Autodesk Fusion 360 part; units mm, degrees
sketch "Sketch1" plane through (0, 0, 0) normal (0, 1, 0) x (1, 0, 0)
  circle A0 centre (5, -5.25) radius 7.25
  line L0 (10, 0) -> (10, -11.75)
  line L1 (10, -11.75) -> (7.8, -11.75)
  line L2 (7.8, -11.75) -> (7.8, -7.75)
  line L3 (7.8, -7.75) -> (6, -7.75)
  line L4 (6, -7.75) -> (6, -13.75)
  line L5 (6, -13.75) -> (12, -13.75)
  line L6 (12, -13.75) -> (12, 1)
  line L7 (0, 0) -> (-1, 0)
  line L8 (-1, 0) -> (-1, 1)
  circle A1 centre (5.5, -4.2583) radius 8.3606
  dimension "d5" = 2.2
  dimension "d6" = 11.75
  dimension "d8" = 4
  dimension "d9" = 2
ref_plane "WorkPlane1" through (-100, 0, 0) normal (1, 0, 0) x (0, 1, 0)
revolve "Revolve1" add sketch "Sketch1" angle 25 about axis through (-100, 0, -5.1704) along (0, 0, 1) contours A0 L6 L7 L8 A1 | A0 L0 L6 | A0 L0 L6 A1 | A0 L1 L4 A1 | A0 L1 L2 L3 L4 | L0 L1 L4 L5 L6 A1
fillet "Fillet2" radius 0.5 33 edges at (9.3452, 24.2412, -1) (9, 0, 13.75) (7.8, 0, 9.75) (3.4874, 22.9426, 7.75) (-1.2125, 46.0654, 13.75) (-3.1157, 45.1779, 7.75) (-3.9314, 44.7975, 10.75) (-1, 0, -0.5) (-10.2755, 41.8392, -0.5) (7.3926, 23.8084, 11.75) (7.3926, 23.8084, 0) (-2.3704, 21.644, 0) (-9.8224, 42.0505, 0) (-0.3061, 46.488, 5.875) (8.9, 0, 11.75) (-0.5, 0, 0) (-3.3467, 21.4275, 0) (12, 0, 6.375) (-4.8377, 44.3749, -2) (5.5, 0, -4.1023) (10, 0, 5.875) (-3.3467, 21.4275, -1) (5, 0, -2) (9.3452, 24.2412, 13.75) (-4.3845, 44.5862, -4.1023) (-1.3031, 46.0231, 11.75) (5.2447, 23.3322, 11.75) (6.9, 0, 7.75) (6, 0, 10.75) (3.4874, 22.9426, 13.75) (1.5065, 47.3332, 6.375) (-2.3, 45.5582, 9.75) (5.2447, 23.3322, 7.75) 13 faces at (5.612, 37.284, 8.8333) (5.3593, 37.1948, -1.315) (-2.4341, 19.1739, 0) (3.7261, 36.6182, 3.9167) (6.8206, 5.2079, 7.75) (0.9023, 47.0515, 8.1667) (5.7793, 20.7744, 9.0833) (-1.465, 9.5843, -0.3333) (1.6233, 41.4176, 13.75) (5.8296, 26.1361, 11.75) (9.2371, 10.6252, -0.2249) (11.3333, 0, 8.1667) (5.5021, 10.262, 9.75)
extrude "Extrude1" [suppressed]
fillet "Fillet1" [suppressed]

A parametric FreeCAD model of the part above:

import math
import FreeCAD as App
import Part
import Sketcher
from FreeCAD import Vector

doc = App.newDocument("Part")
params = doc.addObject("Spreadsheet::Sheet", "Params")
for row, (alias, value) in enumerate([
    ("sketch1_height", "4 mm"),
    ("sketch1_width", "2.2 mm"),
    ("sketch1_height2", "11.75 mm"),
    ("sketch1_width2", "1 mm"),
    ("sketch1_radius", "7.25 mm"),
    ("revolution_angle", "25 deg"),
    ("fillet_radius", "0.5 mm"),
], start=1):
    params.set(f"A{row}", alias)
    params.set(f"B{row}", "=" + value)
    params.setAlias(f"B{row}", alias)

body = doc.addObject("PartDesign::Body", "Body")

sketch1 = doc.addObject("Sketcher::SketchObject", "Sketch")
body.addObject(sketch1)
sketch1.AttachmentSupport = (doc.XZ_Plane, [""])
sketch1.MapMode = "FlatFace"
sketch1.addGeometry(Part.ArcOfCircle(Part.Circle(Vector(5, 5.25, 0), Vector(0, 0, 1), 7.25), math.radians(-133.602819), math.radians(-46.397181)), False)
sketch1.addGeometry(Part.LineSegment(Vector(10, 0, 0), Vector(10, 11.75, 0)), False)
sketch1.addGeometry(Part.LineSegment(Vector(10, 11.75, 0), Vector(7.8, 11.75, 0)), False)
sketch1.addGeometry(Part.LineSegment(Vector(7.8, 11.75, 0), Vector(7.8, 7.75, 0)), False)
sketch1.addGeometry(Part.LineSegment(Vector(7.8, 7.75, 0), Vector(6, 7.75, 0)), False)
sketch1.addGeometry(Part.LineSegment(Vector(6, 7.75, 0), Vector(6, 13.75, 0)), False)
sketch1.addGeometry(Part.LineSegment(Vector(6, 13.75, 0), Vector(12, 13.75, 0)), False)
sketch1.addGeometry(Part.LineSegment(Vector(12, 13.75, 0), Vector(12, -1, 0)), False)
sketch1.addGeometry(Part.ArcOfCircle(Part.Circle(Vector(5.5, 4.2583, 0), Vector(0, 0, 1), 8.3606), math.radians(-141.028207), math.radians(-38.971793)), False)
sketch1.addGeometry(Part.LineSegment(Vector(-1, -1, 0), Vector(-1, 0, 0)), False)
sketch1.addGeometry(Part.LineSegment(Vector(-1, 0, 0), Vector(0, 0, 0)), False)
sketch1.addGeometry(Part.LineSegment(Vector(-100, -1, 0), Vector(-100, 13.75, 0)), True)
sketch1.addConstraint(Sketcher.Constraint("Coincident", 0, 2, 1, 1))
sketch1.addConstraint(Sketcher.Constraint("Coincident", 1, 2, 2, 1))
sketch1.addConstraint(Sketcher.Constraint("Coincident", 2, 2, 3, 1))
sketch1.addConstraint(Sketcher.Constraint("Coincident", 3, 2, 4, 1))
sketch1.addConstraint(Sketcher.Constraint("Coincident", 4, 2, 5, 1))
sketch1.addConstraint(Sketcher.Constraint("Coincident", 5, 2, 6, 1))
sketch1.addConstraint(Sketcher.Constraint("Coincident", 6, 2, 7, 1))
sketch1.addConstraint(Sketcher.Constraint("Coincident", 7, 2, 8, 2))
sketch1.addConstraint(Sketcher.Constraint("Coincident", 8, 1, 9, 1))
sketch1.addConstraint(Sketcher.Constraint("Coincident", 9, 2, 10, 1))
sketch1.addConstraint(Sketcher.Constraint("Coincident", 10, 2, 0, 1))
sketch1.addConstraint(Sketcher.Constraint("Vertical", 1))
sketch1.addConstraint(Sketcher.Constraint("Horizontal", 2))
sketch1.addConstraint(Sketcher.Constraint("Vertical", 3))
sketch1.addConstraint(Sketcher.Constraint("Horizontal", 4))
sketch1.addConstraint(Sketcher.Constraint("Vertical", 5))
sketch1.addConstraint(Sketcher.Constraint("Horizontal", 6))
sketch1.addConstraint(Sketcher.Constraint("Vertical", 7))
sketch1.addConstraint(Sketcher.Constraint("Vertical", 9))
sketch1.addConstraint(Sketcher.Constraint("Horizontal", 10))
sketch1.addConstraint(Sketcher.Constraint("Vertical", 11))
sketch1.addConstraint(Sketcher.Constraint("Coincident", 10, 2, -1, 1))
sketch1.addConstraint(Sketcher.Constraint("PointOnObject", 0, 2, -1))
sketch1.addConstraint(Sketcher.Constraint("Horizontal", 7, 2, 8, 1))
sketch1.addConstraint(Sketcher.Constraint("Horizontal", 8, 1, 11, 1))
sketch1.addConstraint(Sketcher.Constraint("Horizontal", 6, 2, 11, 2))
sketch1.addConstraint(Sketcher.Constraint("Equal", 6, 5))
sketch1.addConstraint(Sketcher.Constraint("Equal", 10, 9))
sketch1.addConstraint(Sketcher.Constraint("DistanceY", 3, 2, 3, 1, 4.0))
sketch1.addConstraint(Sketcher.Constraint("DistanceX", 2, 2, 2, 1, 2.2))
sketch1.addConstraint(Sketcher.Constraint("DistanceX", 4, 2, 1, 2, 4.0))
sketch1.addConstraint(Sketcher.Constraint("DistanceY", 2, 2, 5, 2, 2.0))
sketch1.addConstraint(Sketcher.Constraint("DistanceY", 1, 1, 1, 2, 11.75))
sketch1.addConstraint(Sketcher.Constraint("DistanceX", 10, 1, 10, 2, 1.0))
sketch1.addConstraint(Sketcher.Constraint("Radius", 0, 7.25))
sketch1.addConstraint(Sketcher.Constraint("DistanceX", -1, 1, 0, 3, 5.0))
sketch1.addConstraint(Sketcher.Constraint("DistanceX", 11, 1, -1, 1, 100.0))
sketch1.addConstraint(Sketcher.Constraint("Radius", 8, 8.3606))
sketch1.setExpression("Constraints[28]", "Params.sketch1_height")
sketch1.setExpression("Constraints[29]", "Params.sketch1_width")
sketch1.setExpression("Constraints[32]", "Params.sketch1_height2")
sketch1.setExpression("Constraints[33]", "Params.sketch1_width2")
sketch1.setExpression("Constraints[34]", "Params.sketch1_radius")
revolution = doc.addObject("PartDesign::Revolution", "Revolution")
body.addObject(revolution)
revolution.Profile = sketch1
revolution.ReferenceAxis = (sketch1, ["Axis0"])
revolution.setExpression("Angle", "Params.revolution_angle")
doc.recompute()

fillet = doc.addObject("PartDesign::Fillet", "Fillet")
body.addObject(fillet)
fillet.Base = (revolution, ["Edge1"])
fillet.UseAllEdges = True
fillet.setExpression("Radius", "Params.fillet_radius")

doc.recompute()
